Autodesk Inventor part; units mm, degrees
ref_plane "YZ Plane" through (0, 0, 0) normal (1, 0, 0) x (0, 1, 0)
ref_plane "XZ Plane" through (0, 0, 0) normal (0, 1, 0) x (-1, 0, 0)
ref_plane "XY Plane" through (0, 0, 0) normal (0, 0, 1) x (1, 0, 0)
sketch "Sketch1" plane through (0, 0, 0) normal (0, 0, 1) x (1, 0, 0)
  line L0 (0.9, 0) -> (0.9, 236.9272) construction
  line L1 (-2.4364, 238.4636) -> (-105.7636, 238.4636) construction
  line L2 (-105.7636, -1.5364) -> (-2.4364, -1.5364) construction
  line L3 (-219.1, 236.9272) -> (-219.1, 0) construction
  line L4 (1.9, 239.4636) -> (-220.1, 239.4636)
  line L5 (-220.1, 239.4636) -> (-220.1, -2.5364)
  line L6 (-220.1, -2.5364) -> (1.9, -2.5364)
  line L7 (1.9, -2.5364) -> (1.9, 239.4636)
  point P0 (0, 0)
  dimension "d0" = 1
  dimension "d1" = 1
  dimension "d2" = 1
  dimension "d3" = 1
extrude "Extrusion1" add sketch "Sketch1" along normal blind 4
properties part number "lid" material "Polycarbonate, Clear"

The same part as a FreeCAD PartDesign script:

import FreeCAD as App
import Part
import Sketcher
Q = App.Units.Quantity


def add_polygon(sketch, points):
    """Adds a closed chain of lines whose ends are joined by coincident constraints."""
    first, n = sketch.GeometryCount, len(points)
    for a, b in zip(points, points[1:] + points[:1]):
        sketch.addGeometry(Part.LineSegment(App.Vector(*a, 0), App.Vector(*b, 0)), False)
    for i in range(n):
        sketch.addConstraint(Sketcher.Constraint("Coincident", first + i, 2, first + (i + 1) % n, 1))

doc = App.newDocument("Part")
params = doc.addObject("Spreadsheet::Sheet", "Params")
for row, (alias, value) in enumerate([
    ("sketch1_width", "222 mm"),
    ("sketch1_height", "242 mm"),
    ("pad1_length", "4 mm"),
], start=1):
    params.set(f"A{row}", alias)
    params.set(f"B{row}", "=" + value)
    params.setAlias(f"B{row}", alias)

body = doc.addObject("PartDesign::Body", "Body")

# Sketch on XY plane
sketch1 = body.newObject("Sketcher::SketchObject", "Sketch")
sketch1.AttachmentSupport = (doc.getObject("XY_Plane"), [""])
sketch1.MapMode = "FlatFace"
add_polygon(sketch1, [(1.9, -2.5364), (1.9, 239.4636), (-220.1, 239.4636), (-220.1, -2.5364)])  # lines 0-3
sketch1.addConstraint([
    Sketcher.Constraint("Vertical", 0),
    Sketcher.Constraint("Horizontal", 1),
    Sketcher.Constraint("Vertical", 2),
    Sketcher.Constraint("Horizontal", 3),
    Sketcher.Constraint("DistanceX", 1, 2, 1, 1, Q("222 mm")),
    Sketcher.Constraint("DistanceY", 0, 1, 0, 2, Q("242 mm")),
    Sketcher.Constraint("DistanceX", -1, 1, 0, 2, Q("1.9 mm")),
    Sketcher.Constraint("DistanceY", -1, 1, 0, 2, Q("239.4636 mm")),
])
sketch1.setExpression("Constraints[8]", "Params.sketch1_width")
sketch1.setExpression("Constraints[9]", "Params.sketch1_height")
pad1 = body.newObject("PartDesign::Pad", "Pad")
pad1.Profile = sketch1
pad1.setExpression("Length", "Params.pad1_length")

doc.recompute()
